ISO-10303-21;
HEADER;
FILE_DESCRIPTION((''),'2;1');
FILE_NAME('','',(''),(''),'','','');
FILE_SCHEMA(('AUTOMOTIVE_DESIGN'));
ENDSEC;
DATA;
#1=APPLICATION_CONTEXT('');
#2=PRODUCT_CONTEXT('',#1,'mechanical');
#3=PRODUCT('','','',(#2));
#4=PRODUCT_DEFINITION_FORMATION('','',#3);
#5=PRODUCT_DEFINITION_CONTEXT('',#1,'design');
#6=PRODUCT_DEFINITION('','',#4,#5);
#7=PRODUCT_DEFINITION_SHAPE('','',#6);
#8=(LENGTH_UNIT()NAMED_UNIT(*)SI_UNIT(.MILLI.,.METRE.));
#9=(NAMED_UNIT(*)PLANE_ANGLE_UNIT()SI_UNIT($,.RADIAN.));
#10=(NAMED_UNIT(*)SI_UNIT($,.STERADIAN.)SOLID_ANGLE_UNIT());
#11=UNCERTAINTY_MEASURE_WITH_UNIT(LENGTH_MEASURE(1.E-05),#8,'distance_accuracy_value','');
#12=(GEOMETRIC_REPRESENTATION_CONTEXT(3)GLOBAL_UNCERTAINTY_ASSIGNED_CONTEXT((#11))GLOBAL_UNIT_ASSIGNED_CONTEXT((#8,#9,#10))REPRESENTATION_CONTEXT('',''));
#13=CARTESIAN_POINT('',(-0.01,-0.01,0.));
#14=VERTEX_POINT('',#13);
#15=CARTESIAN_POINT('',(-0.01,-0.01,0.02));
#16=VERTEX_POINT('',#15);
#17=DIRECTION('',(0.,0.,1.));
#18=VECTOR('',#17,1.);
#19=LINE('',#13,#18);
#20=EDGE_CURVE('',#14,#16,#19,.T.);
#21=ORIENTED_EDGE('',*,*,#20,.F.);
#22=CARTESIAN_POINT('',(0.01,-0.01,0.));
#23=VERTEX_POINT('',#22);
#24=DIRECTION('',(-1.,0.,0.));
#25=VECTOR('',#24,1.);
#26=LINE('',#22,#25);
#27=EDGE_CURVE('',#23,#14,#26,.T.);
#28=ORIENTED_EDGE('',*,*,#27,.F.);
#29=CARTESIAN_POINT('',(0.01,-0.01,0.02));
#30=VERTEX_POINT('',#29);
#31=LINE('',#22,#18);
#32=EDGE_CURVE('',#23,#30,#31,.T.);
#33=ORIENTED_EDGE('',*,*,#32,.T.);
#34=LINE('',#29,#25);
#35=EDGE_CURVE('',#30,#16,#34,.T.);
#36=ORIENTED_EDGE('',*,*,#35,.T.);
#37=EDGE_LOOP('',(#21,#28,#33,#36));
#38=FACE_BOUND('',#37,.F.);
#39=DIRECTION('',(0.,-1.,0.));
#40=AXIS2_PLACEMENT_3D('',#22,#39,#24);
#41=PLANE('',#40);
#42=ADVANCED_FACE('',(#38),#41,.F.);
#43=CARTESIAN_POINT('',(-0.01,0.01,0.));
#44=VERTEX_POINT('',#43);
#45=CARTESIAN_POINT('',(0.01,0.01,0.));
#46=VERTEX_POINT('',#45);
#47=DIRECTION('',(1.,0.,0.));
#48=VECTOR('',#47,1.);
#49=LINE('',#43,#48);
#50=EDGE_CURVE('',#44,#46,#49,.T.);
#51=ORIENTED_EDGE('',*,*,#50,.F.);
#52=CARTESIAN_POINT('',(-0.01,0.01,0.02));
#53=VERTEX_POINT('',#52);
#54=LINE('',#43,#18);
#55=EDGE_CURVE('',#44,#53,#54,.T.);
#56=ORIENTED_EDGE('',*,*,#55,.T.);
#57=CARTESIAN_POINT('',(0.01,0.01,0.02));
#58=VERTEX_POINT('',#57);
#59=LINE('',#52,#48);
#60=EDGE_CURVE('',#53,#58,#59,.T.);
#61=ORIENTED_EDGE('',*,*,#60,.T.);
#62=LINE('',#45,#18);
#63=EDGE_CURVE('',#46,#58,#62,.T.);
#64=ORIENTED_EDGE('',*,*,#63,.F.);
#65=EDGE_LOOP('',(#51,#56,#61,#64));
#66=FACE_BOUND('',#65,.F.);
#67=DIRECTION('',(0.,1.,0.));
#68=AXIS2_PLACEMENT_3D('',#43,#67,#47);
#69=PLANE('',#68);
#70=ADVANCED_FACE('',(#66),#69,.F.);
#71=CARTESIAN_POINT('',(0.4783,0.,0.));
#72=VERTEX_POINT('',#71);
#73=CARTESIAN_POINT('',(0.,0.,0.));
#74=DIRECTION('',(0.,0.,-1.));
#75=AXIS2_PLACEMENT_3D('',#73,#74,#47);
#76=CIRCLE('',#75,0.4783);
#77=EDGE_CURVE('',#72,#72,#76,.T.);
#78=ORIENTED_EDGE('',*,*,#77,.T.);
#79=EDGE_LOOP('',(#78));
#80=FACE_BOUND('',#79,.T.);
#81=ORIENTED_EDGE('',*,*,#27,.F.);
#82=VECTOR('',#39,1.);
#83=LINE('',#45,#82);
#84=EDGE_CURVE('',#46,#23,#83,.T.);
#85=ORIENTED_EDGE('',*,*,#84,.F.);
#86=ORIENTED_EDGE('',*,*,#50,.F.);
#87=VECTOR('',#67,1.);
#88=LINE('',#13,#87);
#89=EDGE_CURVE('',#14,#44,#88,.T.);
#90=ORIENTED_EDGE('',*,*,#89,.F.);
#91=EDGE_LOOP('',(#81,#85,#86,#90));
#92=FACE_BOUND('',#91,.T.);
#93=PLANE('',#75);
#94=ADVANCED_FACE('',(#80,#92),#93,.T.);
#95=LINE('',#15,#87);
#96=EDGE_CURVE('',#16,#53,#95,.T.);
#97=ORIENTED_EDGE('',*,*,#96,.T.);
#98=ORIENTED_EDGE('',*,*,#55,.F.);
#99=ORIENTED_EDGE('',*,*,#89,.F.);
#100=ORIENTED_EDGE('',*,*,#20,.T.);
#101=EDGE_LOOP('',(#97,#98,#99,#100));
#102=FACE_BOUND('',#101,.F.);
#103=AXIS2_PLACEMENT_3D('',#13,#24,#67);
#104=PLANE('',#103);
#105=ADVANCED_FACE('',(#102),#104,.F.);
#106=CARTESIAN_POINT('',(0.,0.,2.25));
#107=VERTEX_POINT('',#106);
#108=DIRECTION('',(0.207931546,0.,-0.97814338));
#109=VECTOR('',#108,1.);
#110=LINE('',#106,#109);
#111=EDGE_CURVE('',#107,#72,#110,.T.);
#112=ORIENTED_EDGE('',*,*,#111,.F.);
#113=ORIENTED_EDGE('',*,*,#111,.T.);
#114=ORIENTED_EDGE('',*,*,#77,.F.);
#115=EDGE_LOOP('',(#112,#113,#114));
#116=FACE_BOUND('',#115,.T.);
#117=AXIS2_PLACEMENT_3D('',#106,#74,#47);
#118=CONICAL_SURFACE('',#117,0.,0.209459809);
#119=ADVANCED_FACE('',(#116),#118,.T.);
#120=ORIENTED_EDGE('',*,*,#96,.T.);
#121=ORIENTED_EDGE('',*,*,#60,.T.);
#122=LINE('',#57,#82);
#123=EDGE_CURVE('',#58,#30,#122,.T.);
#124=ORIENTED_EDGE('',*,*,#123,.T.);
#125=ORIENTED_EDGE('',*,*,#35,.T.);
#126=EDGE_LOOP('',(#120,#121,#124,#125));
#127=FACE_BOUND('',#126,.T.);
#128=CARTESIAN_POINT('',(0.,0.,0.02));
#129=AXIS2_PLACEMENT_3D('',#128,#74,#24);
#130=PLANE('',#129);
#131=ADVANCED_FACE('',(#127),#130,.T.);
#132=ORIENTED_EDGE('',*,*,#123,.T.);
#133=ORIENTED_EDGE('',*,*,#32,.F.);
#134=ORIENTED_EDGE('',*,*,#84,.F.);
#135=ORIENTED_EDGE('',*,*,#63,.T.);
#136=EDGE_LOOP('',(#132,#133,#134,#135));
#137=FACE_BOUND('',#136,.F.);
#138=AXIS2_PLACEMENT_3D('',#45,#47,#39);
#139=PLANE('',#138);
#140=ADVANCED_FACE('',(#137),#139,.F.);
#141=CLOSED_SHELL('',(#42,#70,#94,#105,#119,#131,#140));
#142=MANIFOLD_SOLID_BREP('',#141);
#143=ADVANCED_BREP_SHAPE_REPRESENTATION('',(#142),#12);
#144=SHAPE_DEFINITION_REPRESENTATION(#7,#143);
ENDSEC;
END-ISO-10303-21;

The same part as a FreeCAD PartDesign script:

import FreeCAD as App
import Part
import Sketcher
Q = App.Units.Quantity


def add_polygon(sketch, points):
    """Adds a closed chain of lines whose ends are joined by coincident constraints."""
    first, n = sketch.GeometryCount, len(points)
    for a, b in zip(points, points[1:] + points[:1]):
        sketch.addGeometry(Part.LineSegment(App.Vector(*a, 0), App.Vector(*b, 0)), False)
    for i in range(n):
        sketch.addConstraint(Sketcher.Constraint("Coincident", first + i, 2, first + (i + 1) % n, 1))

doc = App.newDocument("Part")
body = doc.addObject("PartDesign::Body", "Body")

# Sketch on XZ plane
sketch1 = body.newObject("Sketcher::SketchObject", "Sketch")
sketch1.AttachmentSupport = (doc.getObject("XZ_Plane"), [""])
sketch1.MapMode = "FlatFace"
add_polygon(sketch1, [(0, 2.25), (0, 0), (0.4783, 0)])  # lines 0-2
sketch1.addConstraint([
    Sketcher.Constraint("Vertical", 0),
    Sketcher.Constraint("Horizontal", 1),
    Sketcher.Constraint("Coincident", 0, 2, -1, 1),
    Sketcher.Constraint("Angle", 2, Q("102.0012 deg")),
    Sketcher.Constraint("DistanceY", 0, 2, 0, 1, 2.25),
])
revolution = body.newObject("PartDesign::Revolution", "Revolution")
revolution.Profile = sketch1
revolution.ReferenceAxis = (sketch1, ["V_Axis"])
revolution.Angle = 360

# Sketch on XY plane
sketch2 = body.newObject("Sketcher::SketchObject", "Sketch001")
sketch2.AttachmentSupport = (doc.getObject("XY_Plane"), [""])
sketch2.MapMode = "FlatFace"
add_polygon(sketch2, [(-0.01, -0.01), (-0.01, 0.01), (0.01, 0.01), (0.01, -0.01)])  # lines 0-3
sketch2.addConstraint([
    Sketcher.Constraint("Vertical", 0),
    Sketcher.Constraint("Horizontal", 1),
    Sketcher.Constraint("Vertical", 2),
    Sketcher.Constraint("Horizontal", 3),
    Sketcher.Constraint("Symmetric", 0, 2, 2, 2, -1, 1),
    Sketcher.Constraint("Equal", 3, 0),
    Sketcher.Constraint("DistanceX", 0, 2, -1, 1, 0.01),
])
pocket1 = body.newObject("PartDesign::Pocket", "Pocket")
pocket1.Profile = sketch2
pocket1.Length = 0.02
pocket1.Reversed = True

doc.recompute()
